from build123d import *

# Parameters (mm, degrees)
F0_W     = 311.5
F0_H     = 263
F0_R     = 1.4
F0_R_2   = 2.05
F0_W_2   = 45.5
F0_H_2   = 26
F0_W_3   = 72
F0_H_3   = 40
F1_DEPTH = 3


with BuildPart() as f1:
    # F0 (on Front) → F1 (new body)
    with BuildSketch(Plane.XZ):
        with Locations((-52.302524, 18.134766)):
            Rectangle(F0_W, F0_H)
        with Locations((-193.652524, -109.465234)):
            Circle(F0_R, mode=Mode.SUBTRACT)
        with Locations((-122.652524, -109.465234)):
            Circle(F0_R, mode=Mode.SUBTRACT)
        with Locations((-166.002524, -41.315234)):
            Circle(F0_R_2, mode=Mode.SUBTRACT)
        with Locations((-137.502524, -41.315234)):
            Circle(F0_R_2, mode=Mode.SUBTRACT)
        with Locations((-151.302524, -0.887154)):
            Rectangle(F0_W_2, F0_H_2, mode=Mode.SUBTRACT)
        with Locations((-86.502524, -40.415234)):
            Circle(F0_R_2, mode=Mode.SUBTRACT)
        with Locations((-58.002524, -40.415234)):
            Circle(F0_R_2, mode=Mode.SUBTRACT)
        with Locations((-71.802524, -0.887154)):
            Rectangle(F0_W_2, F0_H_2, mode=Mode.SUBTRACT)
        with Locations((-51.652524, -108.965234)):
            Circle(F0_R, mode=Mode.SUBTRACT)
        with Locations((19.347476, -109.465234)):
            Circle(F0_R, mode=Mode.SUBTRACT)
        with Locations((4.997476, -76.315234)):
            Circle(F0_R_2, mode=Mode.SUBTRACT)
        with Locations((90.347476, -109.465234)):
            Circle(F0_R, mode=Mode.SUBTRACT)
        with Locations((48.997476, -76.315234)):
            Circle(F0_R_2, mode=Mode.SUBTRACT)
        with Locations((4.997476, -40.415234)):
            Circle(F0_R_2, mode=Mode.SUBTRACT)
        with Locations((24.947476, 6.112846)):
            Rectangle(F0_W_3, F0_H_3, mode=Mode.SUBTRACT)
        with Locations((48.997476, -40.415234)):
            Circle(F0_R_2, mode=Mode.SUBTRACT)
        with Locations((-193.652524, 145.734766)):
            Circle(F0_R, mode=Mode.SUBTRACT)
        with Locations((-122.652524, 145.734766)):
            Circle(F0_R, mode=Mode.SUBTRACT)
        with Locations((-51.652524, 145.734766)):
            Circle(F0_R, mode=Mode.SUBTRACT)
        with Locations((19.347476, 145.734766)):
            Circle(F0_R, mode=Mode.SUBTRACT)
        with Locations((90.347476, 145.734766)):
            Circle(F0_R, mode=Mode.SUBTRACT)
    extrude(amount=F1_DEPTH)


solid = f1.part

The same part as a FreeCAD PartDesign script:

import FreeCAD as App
import Part
import Sketcher
Q = App.Units.Quantity


def add_polygon(sketch, points):
    """Adds a closed chain of lines whose ends are joined by coincident constraints."""
    first, n = sketch.GeometryCount, len(points)
    for a, b in zip(points, points[1:] + points[:1]):
        sketch.addGeometry(Part.LineSegment(App.Vector(*a, 0), App.Vector(*b, 0)), False)
    for i in range(n):
        sketch.addConstraint(Sketcher.Constraint("Coincident", first + i, 2, first + (i + 1) % n, 1))

doc = App.newDocument("Part")
body = doc.addObject("PartDesign::Body", "Body")

sketch1 = doc.addObject("Sketcher::SketchObject", "Sketch")
body.addObject(sketch1)
sketch1.AttachmentSupport = (doc.XZ_Plane, [""])
sketch1.MapMode = "FlatFace"
add_polygon(sketch1, [(-208.1, 149.6), (-208.1, -113.4), (103.4, -113.4), (103.4, 149.6)])
sketch1.addGeometry(Part.Circle(App.Vector(-193.7, -109.5, 0), App.Vector(0, 0, 1), 1.4), False)
sketch1.addGeometry(Part.Circle(App.Vector(-122.7, -109.5, 0), App.Vector(0, 0, 1), 1.4), False)
sketch1.addGeometry(Part.Circle(App.Vector(-166, -41.3, 0), App.Vector(0, 0, 1), 2), False)
sketch1.addGeometry(Part.Circle(App.Vector(-137.5, -41.3, 0), App.Vector(0, 0, 1), 2), False)
add_polygon(sketch1, [(-128.6, -13.9), (-174.1, -13.9), (-174.1, 12.1), (-128.6, 12.1)])
sketch1.addGeometry(Part.Circle(App.Vector(-86.5, -40.4, 0), App.Vector(0, 0, 1), 2), False)
sketch1.addGeometry(Part.Circle(App.Vector(-58, -40.4, 0), App.Vector(0, 0, 1), 2), False)
add_polygon(sketch1, [(-49.1, -13.9), (-94.6, -13.9), (-94.6, 12.1), (-49.1, 12.1)])
sketch1.addGeometry(Part.Circle(App.Vector(-51.7, -109, 0), App.Vector(0, 0, 1), 1.4), False)
sketch1.addGeometry(Part.Circle(App.Vector(19.3, -109.5, 0), App.Vector(0, 0, 1), 1.4), False)
sketch1.addGeometry(Part.Circle(App.Vector(5, -76.3, 0), App.Vector(0, 0, 1), 2), False)
sketch1.addGeometry(Part.Circle(App.Vector(90.3, -109.5, 0), App.Vector(0, 0, 1), 1.4), False)
sketch1.addGeometry(Part.Circle(App.Vector(49, -76.3, 0), App.Vector(0, 0, 1), 2), False)
sketch1.addGeometry(Part.Circle(App.Vector(5, -40.4, 0), App.Vector(0, 0, 1), 2), False)
sketch1.addGeometry(Part.Circle(App.Vector(49, -40.4, 0), App.Vector(0, 0, 1), 2), False)
add_polygon(sketch1, [(60.9, -13.9), (-11.1, -13.9), (-11.1, 26.1), (60.9, 26.1)])
sketch1.addGeometry(Part.Circle(App.Vector(-193.7, 145.7, 0), App.Vector(0, 0, 1), 1.4), False)
sketch1.addGeometry(Part.Circle(App.Vector(-122.7, 145.7, 0), App.Vector(0, 0, 1), 1.4), False)
sketch1.addGeometry(Part.Circle(App.Vector(-51.7, 145.7, 0), App.Vector(0, 0, 1), 1.4), False)
sketch1.addGeometry(Part.Circle(App.Vector(19.3, 145.7, 0), App.Vector(0, 0, 1), 1.4), False)
sketch1.addGeometry(Part.Circle(App.Vector(90.3, 145.7, 0), App.Vector(0, 0, 1), 1.4), False)
sketch1.addConstraint([
    Sketcher.Constraint("Vertical", 0),
    Sketcher.Constraint("Horizontal", 1),
    Sketcher.Constraint("Vertical", 2),
    Sketcher.Constraint("Horizontal", 3),
    Sketcher.Constraint("Horizontal", 8),
    Sketcher.Constraint("Vertical", 9),
    Sketcher.Constraint("Horizontal", 10),
    Sketcher.Constraint("Vertical", 11),
    Sketcher.Constraint("Horizontal", 14),
    Sketcher.Constraint("Vertical", 15),
    Sketcher.Constraint("Horizontal", 16),
    Sketcher.Constraint("Vertical", 17),
    Sketcher.Constraint("Horizontal", 25),
    Sketcher.Constraint("Vertical", 26),
    Sketcher.Constraint("Horizontal", 27),
    Sketcher.Constraint("Vertical", 28),
    Sketcher.Constraint("Equal", 4, 5),
    Sketcher.Constraint("Equal", 6, 7),
    Sketcher.Constraint("Equal", 7, 12),
    Sketcher.Constraint("Equal", 12, 13),
    Sketcher.Constraint("Equal", 5, 18),
    Sketcher.Constraint("Equal", 18, 19),
    Sketcher.Constraint("Equal", 13, 20),
    Sketcher.Constraint("Equal", 19, 21),
    Sketcher.Constraint("Equal", 20, 22),
    Sketcher.Constraint("Equal", 22, 23),
    Sketcher.Constraint("Equal", 23, 24),
    Sketcher.Constraint("Equal", 21, 29),
    Sketcher.Constraint("Equal", 29, 30),
    Sketcher.Constraint("Equal", 30, 31),
    Sketcher.Constraint("Equal", 31, 32),
    Sketcher.Constraint("Equal", 32, 33),
    Sketcher.Constraint("Horizontal", 4, 3, 5, 3),
    Sketcher.Constraint("Horizontal", 6, 3, 7, 3),
    Sketcher.Constraint("Horizontal", 12, 3, 13, 3),
    Sketcher.Constraint("Horizontal", 5, 3, 19, 3),
    Sketcher.Constraint("Horizontal", 19, 3, 21, 3),
    Sketcher.Constraint("Horizontal", 20, 3, 22, 3),
    Sketcher.Constraint("Horizontal", 13, 3, 23, 3),
    Sketcher.Constraint("Horizontal", 23, 3, 24, 3),
    Sketcher.Constraint("Horizontal", 29, 3, 30, 3),
    Sketcher.Constraint("Horizontal", 30, 3, 31, 3),
    Sketcher.Constraint("Horizontal", 31, 3, 32, 3),
    Sketcher.Constraint("Horizontal", 32, 3, 33, 3),
    Sketcher.Constraint("Horizontal", 11, 2, 14, 2),
    Sketcher.Constraint("Horizontal", 10, 2, 15, 2),
    Sketcher.Constraint("Horizontal", 17, 2, 25, 2),
    Sketcher.Constraint("Vertical", 20, 3, 23, 3),
    Sketcher.Constraint("Vertical", 22, 3, 24, 3),
    Sketcher.Constraint("Vertical", 4, 3, 29, 3),
    Sketcher.Constraint("Vertical", 5, 3, 30, 3),
    Sketcher.Constraint("Vertical", 18, 3, 31, 3),
    Sketcher.Constraint("Vertical", 19, 3, 32, 3),
    Sketcher.Constraint("Vertical", 21, 3, 33, 3),
    Sketcher.Constraint("Equal", 10, 14),
    Sketcher.Constraint("Diameter", 4, Q("2.8 mm")),
    Sketcher.Constraint("Diameter", 6, Q("4.1 mm")),
    Sketcher.Constraint("DistanceX", 25, 2, 25, 1, Q("72 mm")),
    Sketcher.Constraint("DistanceY", 0, 2, 0, 1, Q("263 mm")),
    Sketcher.Constraint("DistanceY", 9, 1, 9, 2, Q("26 mm")),
    Sketcher.Constraint("DistanceY", 26, 1, 26, 2, Q("40 mm")),
    Sketcher.Constraint("DistanceX", 1, 1, 1, 2, Q("311.5 mm")),
    Sketcher.Constraint("DistanceX", 8, 2, 8, 1, Q("45.5 mm")),
    Sketcher.Constraint("DistanceX", 4, 3, 5, 3, Q("71 mm")),
    Sketcher.Constraint("DistanceX", 7, 3, 12, 3, Q("51 mm")),
    Sketcher.Constraint("DistanceX", 6, 3, 13, 3, Q("108 mm")),
    Sketcher.Constraint("DistanceX", 5, 3, 18, 3, Q("71 mm")),
    Sketcher.Constraint("DistanceX", 18, 3, 19, 3, Q("71 mm")),
    Sketcher.Constraint("DistanceX", 13, 3, 20, 3, Q("63 mm")),
    Sketcher.Constraint("DistanceX", 19, 3, 21, 3, Q("71 mm")),
    Sketcher.Constraint("DistanceX", 20, 3, 22, 3, Q("44 mm")),
    Sketcher.Constraint("DistanceX", 0, 2, 8, 2, Q("34 mm")),
    Sketcher.Constraint("DistanceX", 11, 2, 14, 2, Q("34 mm")),
    Sketcher.Constraint("DistanceX", 17, 2, 25, 2, Q("38 mm")),
    Sketcher.Constraint("DistanceX", 6, 3, 7, 3, Q("28.5 mm")),
    Sketcher.Constraint("DistanceY", 7, 3, 12, 3, Q("0.9 mm")),
    Sketcher.Constraint("DistanceY", 5, 3, 18, 3, Q("0.5 mm")),
    Sketcher.Constraint("DistanceY", 20, 3, 13, 3, Q("35.9 mm")),
    Sketcher.Constraint("DistanceY", 4, 3, 29, 3, Q("255.2 mm")),
    Sketcher.Constraint("DistanceX", 0, 2, 4, 3, Q("14.4 mm")),
    Sketcher.Constraint("DistanceY", 0, 2, 4, 3, Q("3.9 mm")),
    Sketcher.Constraint("DistanceX", 4, 3, 6, 3, Q("27.65 mm")),
    Sketcher.Constraint("DistanceY", 4, 3, 6, 3, Q("68.15 mm")),
    Sketcher.Constraint("DistanceY", 6, 3, 8, 2, Q("27.42808 mm")),
    Sketcher.Constraint("DistanceX", 4, 3, -1, 1, Q("193.652524 mm")),
    Sketcher.Constraint("DistanceY", 4, 3, -1, 1, Q("109.465234 mm")),
])
pad1 = doc.addObject("PartDesign::Pad", "Pad")
body.addObject(pad1)
pad1.Profile = sketch1
pad1.Length = 3

doc.recompute()
